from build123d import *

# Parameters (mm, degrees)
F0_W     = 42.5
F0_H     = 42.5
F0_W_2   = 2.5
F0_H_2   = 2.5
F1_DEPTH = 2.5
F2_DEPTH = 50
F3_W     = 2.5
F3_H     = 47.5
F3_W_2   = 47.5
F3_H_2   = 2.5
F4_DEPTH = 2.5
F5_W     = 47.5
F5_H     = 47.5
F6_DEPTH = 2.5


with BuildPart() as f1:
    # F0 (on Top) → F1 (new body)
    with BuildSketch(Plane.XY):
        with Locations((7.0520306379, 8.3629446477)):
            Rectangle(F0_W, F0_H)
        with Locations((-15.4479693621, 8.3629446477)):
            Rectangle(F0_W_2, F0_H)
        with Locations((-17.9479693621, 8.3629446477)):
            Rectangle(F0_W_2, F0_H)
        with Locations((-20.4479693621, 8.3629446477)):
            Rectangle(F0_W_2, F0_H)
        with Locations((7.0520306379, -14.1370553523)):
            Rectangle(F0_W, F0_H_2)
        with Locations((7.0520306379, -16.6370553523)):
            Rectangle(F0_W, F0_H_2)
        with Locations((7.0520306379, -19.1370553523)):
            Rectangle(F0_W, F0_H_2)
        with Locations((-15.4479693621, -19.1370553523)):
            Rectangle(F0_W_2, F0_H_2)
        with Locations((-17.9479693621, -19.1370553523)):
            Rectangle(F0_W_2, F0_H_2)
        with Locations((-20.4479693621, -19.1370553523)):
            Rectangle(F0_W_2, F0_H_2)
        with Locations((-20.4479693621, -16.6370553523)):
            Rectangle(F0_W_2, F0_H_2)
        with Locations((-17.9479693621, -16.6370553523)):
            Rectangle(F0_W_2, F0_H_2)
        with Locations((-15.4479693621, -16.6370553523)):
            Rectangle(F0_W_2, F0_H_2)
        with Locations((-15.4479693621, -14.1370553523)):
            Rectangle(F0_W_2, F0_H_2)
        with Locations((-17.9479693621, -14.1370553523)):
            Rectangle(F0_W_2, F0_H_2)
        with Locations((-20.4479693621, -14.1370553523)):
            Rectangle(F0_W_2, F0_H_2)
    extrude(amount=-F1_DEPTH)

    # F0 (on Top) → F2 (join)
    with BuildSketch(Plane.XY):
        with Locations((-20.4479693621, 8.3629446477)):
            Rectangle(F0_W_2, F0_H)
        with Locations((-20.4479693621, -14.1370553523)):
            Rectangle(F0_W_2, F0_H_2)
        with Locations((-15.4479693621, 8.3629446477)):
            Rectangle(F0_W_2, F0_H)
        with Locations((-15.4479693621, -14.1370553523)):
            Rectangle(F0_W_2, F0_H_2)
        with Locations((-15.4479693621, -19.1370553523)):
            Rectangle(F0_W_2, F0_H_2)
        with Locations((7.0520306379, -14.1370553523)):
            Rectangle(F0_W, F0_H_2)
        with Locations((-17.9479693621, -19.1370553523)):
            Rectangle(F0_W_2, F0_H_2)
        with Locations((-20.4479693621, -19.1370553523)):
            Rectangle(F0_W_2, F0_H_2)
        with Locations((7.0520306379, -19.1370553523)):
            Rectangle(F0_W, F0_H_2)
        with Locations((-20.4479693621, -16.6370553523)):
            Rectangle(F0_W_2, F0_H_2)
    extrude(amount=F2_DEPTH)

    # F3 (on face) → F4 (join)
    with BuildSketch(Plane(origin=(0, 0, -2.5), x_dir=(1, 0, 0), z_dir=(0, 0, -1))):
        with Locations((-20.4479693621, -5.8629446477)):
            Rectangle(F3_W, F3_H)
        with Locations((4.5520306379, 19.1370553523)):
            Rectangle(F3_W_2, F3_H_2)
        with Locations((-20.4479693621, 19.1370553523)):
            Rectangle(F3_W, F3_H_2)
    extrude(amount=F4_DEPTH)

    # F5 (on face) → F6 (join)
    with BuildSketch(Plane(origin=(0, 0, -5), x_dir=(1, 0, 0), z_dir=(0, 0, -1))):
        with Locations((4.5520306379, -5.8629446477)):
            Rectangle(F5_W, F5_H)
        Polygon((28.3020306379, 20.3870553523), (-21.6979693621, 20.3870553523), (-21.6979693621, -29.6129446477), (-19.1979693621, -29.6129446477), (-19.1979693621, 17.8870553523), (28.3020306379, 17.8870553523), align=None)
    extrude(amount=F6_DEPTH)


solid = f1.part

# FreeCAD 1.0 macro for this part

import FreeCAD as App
import Part
import Sketcher
from FreeCAD import Vector

doc = App.newDocument("Part")
body = doc.addObject("PartDesign::Body", "Body")

# Sketch on XY plane
sketch1 = body.newObject("Sketcher::SketchObject", "Sketch")
sketch1.AttachmentSupport = (doc.getObject("XY_Plane"), [""])
sketch1.MapMode = "FlatFace"
sketch1.addGeometry(Part.LineSegment(Vector(28, 30, 0), Vector(-22, 30, 0)), False)
sketch1.addGeometry(Part.LineSegment(Vector(-22, 30, 0), Vector(-22, -20, 0)), False)
sketch1.addGeometry(Part.LineSegment(Vector(-22, -20, 0), Vector(28, -20, 0)), False)
sketch1.addGeometry(Part.LineSegment(Vector(28, -20, 0), Vector(28, 30, 0)), False)
sketch1.addConstraint(Sketcher.Constraint("Coincident", 0, 2, 1, 1))
sketch1.addConstraint(Sketcher.Constraint("Coincident", 1, 2, 2, 1))
sketch1.addConstraint(Sketcher.Constraint("Coincident", 2, 2, 3, 1))
sketch1.addConstraint(Sketcher.Constraint("Coincident", 3, 2, 0, 1))
sketch1.addConstraint(Sketcher.Constraint("Horizontal", 0))
sketch1.addConstraint(Sketcher.Constraint("Vertical", 1))
sketch1.addConstraint(Sketcher.Constraint("Horizontal", 2))
sketch1.addConstraint(Sketcher.Constraint("Vertical", 3))
sketch1.addConstraint(Sketcher.Constraint("Equal", 2, 1))
sketch1.addConstraint(Sketcher.Constraint("DistanceX", 0, 2, 0, 1, 50.0))
sketch1.addConstraint(Sketcher.Constraint("DistanceX", 0, 2, -1, 1, 21.697969))
sketch1.addConstraint(Sketcher.Constraint("DistanceY", -1, 1, 0, 2, 29.612945))
pad1 = body.newObject("PartDesign::Pad", "Pad")
pad1.Profile = sketch1
pad1.Length = 2.5
pad1.Reversed = True

# Sketch on XY plane
sketch2 = body.newObject("Sketcher::SketchObject", "Sketch001")
sketch2.AttachmentSupport = (doc.getObject("XY_Plane"), [""])
sketch2.MapMode = "FlatFace"
sketch2.addGeometry(Part.LineSegment(Vector(-21.7, 29.6, 0), Vector(-21.7, -20.4, 0)), False)
sketch2.addGeometry(Part.LineSegment(Vector(-21.7, -20.4, 0), Vector(28.3, -20.4, 0)), False)
sketch2.addGeometry(Part.LineSegment(Vector(28.3, -20.4, 0), Vector(28.3, -17.9, 0)), False)
sketch2.addGeometry(Part.LineSegment(Vector(28.3, -17.9, 0), Vector(-19.2, -17.9, 0)), False)
sketch2.addGeometry(Part.LineSegment(Vector(-19.2, -17.9, 0), Vector(-19.2, 29.6, 0)), False)
sketch2.addGeometry(Part.LineSegment(Vector(-19.2, 29.6, 0), Vector(-21.7, 29.6, 0)), False)
sketch2.addGeometry(Part.LineSegment(Vector(-16.7, 29.6, 0), Vector(-16.7, -15.4, 0)), False)
sketch2.addGeometry(Part.LineSegment(Vector(-16.7, -15.4, 0), Vector(28.3, -15.4, 0)), False)
sketch2.addGeometry(Part.LineSegment(Vector(28.3, -15.4, 0), Vector(28.3, -12.9, 0)), False)
sketch2.addGeometry(Part.LineSegment(Vector(28.3, -12.9, 0), Vector(-14.2, -12.9, 0)), False)
sketch2.addGeometry(Part.LineSegment(Vector(-14.2, -12.9, 0), Vector(-14.2, 29.6, 0)), False)
sketch2.addGeometry(Part.LineSegment(Vector(-14.2, 29.6, 0), Vector(-16.7, 29.6, 0)), False)
sketch2.addConstraint(Sketcher.Constraint("Coincident", 0, 2, 1, 1))
sketch2.addConstraint(Sketcher.Constraint("Coincident", 1, 2, 2, 1))
sketch2.addConstraint(Sketcher.Constraint("Coincident", 2, 2, 3, 1))
sketch2.addConstraint(Sketcher.Constraint("Coincident", 3, 2, 4, 1))
sketch2.addConstraint(Sketcher.Constraint("Coincident", 4, 2, 5, 1))
sketch2.addConstraint(Sketcher.Constraint("Coincident", 5, 2, 0, 1))
sketch2.addConstraint(Sketcher.Constraint("Coincident", 6, 2, 7, 1))
sketch2.addConstraint(Sketcher.Constraint("Coincident", 7, 2, 8, 1))
sketch2.addConstraint(Sketcher.Constraint("Coincident", 8, 2, 9, 1))
sketch2.addConstraint(Sketcher.Constraint("Coincident", 9, 2, 10, 1))
sketch2.addConstraint(Sketcher.Constraint("Coincident", 10, 2, 11, 1))
sketch2.addConstraint(Sketcher.Constraint("Coincident", 11, 2, 6, 1))
sketch2.addConstraint(Sketcher.Constraint("Vertical", 0))
sketch2.addConstraint(Sketcher.Constraint("Horizontal", 1))
sketch2.addConstraint(Sketcher.Constraint("Vertical", 2))
sketch2.addConstraint(Sketcher.Constraint("Horizontal", 3))
sketch2.addConstraint(Sketcher.Constraint("Vertical", 4))
sketch2.addConstraint(Sketcher.Constraint("Horizontal", 5))
sketch2.addConstraint(Sketcher.Constraint("Vertical", 6))
sketch2.addConstraint(Sketcher.Constraint("Horizontal", 7))
sketch2.addConstraint(Sketcher.Constraint("Vertical", 8))
sketch2.addConstraint(Sketcher.Constraint("Horizontal", 9))
sketch2.addConstraint(Sketcher.Constraint("Vertical", 10))
sketch2.addConstraint(Sketcher.Constraint("Horizontal", 11))
sketch2.addConstraint(Sketcher.Constraint("Horizontal", 5, 2, 10, 2))
sketch2.addConstraint(Sketcher.Constraint("Vertical", 2, 2, 7, 2))
sketch2.addConstraint(Sketcher.Constraint("Equal", 5, 11))
sketch2.addConstraint(Sketcher.Constraint("Equal", 1, 0))
sketch2.addConstraint(Sketcher.Constraint("Equal", 11, 2))
sketch2.addConstraint(Sketcher.Constraint("Equal", 7, 6))
sketch2.addConstraint(Sketcher.Constraint("Equal", 2, 8))
sketch2.addConstraint(Sketcher.Constraint("DistanceX", 1, 1, 1, 2, 50.0))
sketch2.addConstraint(Sketcher.Constraint("DistanceX", 7, 1, 7, 2, 45.0))
sketch2.addConstraint(Sketcher.Constraint("DistanceX", 3, 2, 3, 1, 47.5))
sketch2.addConstraint(Sketcher.Constraint("DistanceX", 0, 2, -1, 1, 21.697969))
sketch2.addConstraint(Sketcher.Constraint("DistanceY", 0, 2, -1, 1, 20.387055))
pad2 = body.newObject("PartDesign::Pad", "Pad001")
pad2.Profile = sketch2
pad2.Length = 50

# Sketch on XY plane
sketch3 = body.newObject("Sketcher::SketchObject", "Sketch002")
sketch3.AttachmentSupport = (doc.getObject("XY_Plane"), [""])
sketch3.MapMode = "FlatFace"
sketch3.AttachmentOffset = App.Placement(Vector(0, 0, -2.5), App.Rotation())
sketch3.addGeometry(Part.LineSegment(Vector(-21.7, 29.6, 0), Vector(-19.2, 29.6, 0)), False)
sketch3.addGeometry(Part.LineSegment(Vector(-19.2, 29.6, 0), Vector(-19.2, -17.9, 0)), False)
sketch3.addGeometry(Part.LineSegment(Vector(-19.2, -17.9, 0), Vector(28.3, -17.9, 0)), False)
sketch3.addGeometry(Part.LineSegment(Vector(28.3, -17.9, 0), Vector(28.3, -20.4, 0)), False)
sketch3.addGeometry(Part.LineSegment(Vector(28.3, -20.4, 0), Vector(-21.7, -20.4, 0)), False)
sketch3.addGeometry(Part.LineSegment(Vector(-21.7, -20.4, 0), Vector(-21.7, 29.6, 0)), False)
sketch3.addConstraint(Sketcher.Constraint("Coincident", 0, 2, 1, 1))
sketch3.addConstraint(Sketcher.Constraint("Coincident", 1, 2, 2, 1))
sketch3.addConstraint(Sketcher.Constraint("Coincident", 2, 2, 3, 1))
sketch3.addConstraint(Sketcher.Constraint("Coincident", 3, 2, 4, 1))
sketch3.addConstraint(Sketcher.Constraint("Coincident", 4, 2, 5, 1))
sketch3.addConstraint(Sketcher.Constraint("Coincident", 5, 2, 0, 1))
sketch3.addConstraint(Sketcher.Constraint("Horizontal", 0))
sketch3.addConstraint(Sketcher.Constraint("Vertical", 1))
sketch3.addConstraint(Sketcher.Constraint("Horizontal", 2))
sketch3.addConstraint(Sketcher.Constraint("Vertical", 3))
sketch3.addConstraint(Sketcher.Constraint("Horizontal", 4))
sketch3.addConstraint(Sketcher.Constraint("Vertical", 5))
sketch3.addConstraint(Sketcher.Constraint("Equal", 2, 1))
sketch3.addConstraint(Sketcher.Constraint("Equal", 0, 3))
sketch3.addConstraint(Sketcher.Constraint("DistanceX", 4, 2, 4, 1, 50.0))
sketch3.addConstraint(Sketcher.Constraint("DistanceX", 0, 1, 0, 2, 2.5))
sketch3.addConstraint(Sketcher.Constraint("DistanceX", 0, 2, -1, 1, 19.197969))
sketch3.addConstraint(Sketcher.Constraint("DistanceY", -1, 1, 0, 2, 29.612945))
pad3 = body.newObject("PartDesign::Pad", "Pad002")
pad3.Profile = sketch3
pad3.Length = 2.5
pad3.Reversed = True

# Sketch on XY plane
sketch4 = body.newObject("Sketcher::SketchObject", "Sketch003")
sketch4.AttachmentSupport = (doc.getObject("XY_Plane"), [""])
sketch4.MapMode = "FlatFace"
sketch4.AttachmentOffset = App.Placement(Vector(0, 0, -5), App.Rotation())
sketch4.addGeometry(Part.LineSegment(Vector(28, 30, 0), Vector(28, -20, 0)), False)
sketch4.addGeometry(Part.LineSegment(Vector(28, -20, 0), Vector(-22, -20, 0)), False)
sketch4.addGeometry(Part.LineSegment(Vector(-22, -20, 0), Vector(-22, 30, 0)), False)
sketch4.addGeometry(Part.LineSegment(Vector(-22, 30, 0), Vector(28, 30, 0)), False)
sketch4.addConstraint(Sketcher.Constraint("Coincident", 0, 2, 1, 1))
sketch4.addConstraint(Sketcher.Constraint("Coincident", 1, 2, 2, 1))
sketch4.addConstraint(Sketcher.Constraint("Coincident", 2, 2, 3, 1))
sketch4.addConstraint(Sketcher.Constraint("Coincident", 3, 2, 0, 1))
sketch4.addConstraint(Sketcher.Constraint("Vertical", 0))
sketch4.addConstraint(Sketcher.Constraint("Horizontal", 1))
sketch4.addConstraint(Sketcher.Constraint("Vertical", 2))
sketch4.addConstraint(Sketcher.Constraint("Horizontal", 3))
sketch4.addConstraint(Sketcher.Constraint("Equal", 3, 0))
sketch4.addConstraint(Sketcher.Constraint("DistanceX", 1, 2, 1, 1, 50.0))
sketch4.addConstraint(Sketcher.Constraint("DistanceX", -1, 1, 0, 2, 28.302031))
sketch4.addConstraint(Sketcher.Constraint("DistanceY", 0, 2, -1, 1, 20.387055))
pad4 = body.newObject("PartDesign::Pad", "Pad003")
pad4.Profile = sketch4
pad4.Length = 2.5
pad4.Reversed = True

doc.recompute()
